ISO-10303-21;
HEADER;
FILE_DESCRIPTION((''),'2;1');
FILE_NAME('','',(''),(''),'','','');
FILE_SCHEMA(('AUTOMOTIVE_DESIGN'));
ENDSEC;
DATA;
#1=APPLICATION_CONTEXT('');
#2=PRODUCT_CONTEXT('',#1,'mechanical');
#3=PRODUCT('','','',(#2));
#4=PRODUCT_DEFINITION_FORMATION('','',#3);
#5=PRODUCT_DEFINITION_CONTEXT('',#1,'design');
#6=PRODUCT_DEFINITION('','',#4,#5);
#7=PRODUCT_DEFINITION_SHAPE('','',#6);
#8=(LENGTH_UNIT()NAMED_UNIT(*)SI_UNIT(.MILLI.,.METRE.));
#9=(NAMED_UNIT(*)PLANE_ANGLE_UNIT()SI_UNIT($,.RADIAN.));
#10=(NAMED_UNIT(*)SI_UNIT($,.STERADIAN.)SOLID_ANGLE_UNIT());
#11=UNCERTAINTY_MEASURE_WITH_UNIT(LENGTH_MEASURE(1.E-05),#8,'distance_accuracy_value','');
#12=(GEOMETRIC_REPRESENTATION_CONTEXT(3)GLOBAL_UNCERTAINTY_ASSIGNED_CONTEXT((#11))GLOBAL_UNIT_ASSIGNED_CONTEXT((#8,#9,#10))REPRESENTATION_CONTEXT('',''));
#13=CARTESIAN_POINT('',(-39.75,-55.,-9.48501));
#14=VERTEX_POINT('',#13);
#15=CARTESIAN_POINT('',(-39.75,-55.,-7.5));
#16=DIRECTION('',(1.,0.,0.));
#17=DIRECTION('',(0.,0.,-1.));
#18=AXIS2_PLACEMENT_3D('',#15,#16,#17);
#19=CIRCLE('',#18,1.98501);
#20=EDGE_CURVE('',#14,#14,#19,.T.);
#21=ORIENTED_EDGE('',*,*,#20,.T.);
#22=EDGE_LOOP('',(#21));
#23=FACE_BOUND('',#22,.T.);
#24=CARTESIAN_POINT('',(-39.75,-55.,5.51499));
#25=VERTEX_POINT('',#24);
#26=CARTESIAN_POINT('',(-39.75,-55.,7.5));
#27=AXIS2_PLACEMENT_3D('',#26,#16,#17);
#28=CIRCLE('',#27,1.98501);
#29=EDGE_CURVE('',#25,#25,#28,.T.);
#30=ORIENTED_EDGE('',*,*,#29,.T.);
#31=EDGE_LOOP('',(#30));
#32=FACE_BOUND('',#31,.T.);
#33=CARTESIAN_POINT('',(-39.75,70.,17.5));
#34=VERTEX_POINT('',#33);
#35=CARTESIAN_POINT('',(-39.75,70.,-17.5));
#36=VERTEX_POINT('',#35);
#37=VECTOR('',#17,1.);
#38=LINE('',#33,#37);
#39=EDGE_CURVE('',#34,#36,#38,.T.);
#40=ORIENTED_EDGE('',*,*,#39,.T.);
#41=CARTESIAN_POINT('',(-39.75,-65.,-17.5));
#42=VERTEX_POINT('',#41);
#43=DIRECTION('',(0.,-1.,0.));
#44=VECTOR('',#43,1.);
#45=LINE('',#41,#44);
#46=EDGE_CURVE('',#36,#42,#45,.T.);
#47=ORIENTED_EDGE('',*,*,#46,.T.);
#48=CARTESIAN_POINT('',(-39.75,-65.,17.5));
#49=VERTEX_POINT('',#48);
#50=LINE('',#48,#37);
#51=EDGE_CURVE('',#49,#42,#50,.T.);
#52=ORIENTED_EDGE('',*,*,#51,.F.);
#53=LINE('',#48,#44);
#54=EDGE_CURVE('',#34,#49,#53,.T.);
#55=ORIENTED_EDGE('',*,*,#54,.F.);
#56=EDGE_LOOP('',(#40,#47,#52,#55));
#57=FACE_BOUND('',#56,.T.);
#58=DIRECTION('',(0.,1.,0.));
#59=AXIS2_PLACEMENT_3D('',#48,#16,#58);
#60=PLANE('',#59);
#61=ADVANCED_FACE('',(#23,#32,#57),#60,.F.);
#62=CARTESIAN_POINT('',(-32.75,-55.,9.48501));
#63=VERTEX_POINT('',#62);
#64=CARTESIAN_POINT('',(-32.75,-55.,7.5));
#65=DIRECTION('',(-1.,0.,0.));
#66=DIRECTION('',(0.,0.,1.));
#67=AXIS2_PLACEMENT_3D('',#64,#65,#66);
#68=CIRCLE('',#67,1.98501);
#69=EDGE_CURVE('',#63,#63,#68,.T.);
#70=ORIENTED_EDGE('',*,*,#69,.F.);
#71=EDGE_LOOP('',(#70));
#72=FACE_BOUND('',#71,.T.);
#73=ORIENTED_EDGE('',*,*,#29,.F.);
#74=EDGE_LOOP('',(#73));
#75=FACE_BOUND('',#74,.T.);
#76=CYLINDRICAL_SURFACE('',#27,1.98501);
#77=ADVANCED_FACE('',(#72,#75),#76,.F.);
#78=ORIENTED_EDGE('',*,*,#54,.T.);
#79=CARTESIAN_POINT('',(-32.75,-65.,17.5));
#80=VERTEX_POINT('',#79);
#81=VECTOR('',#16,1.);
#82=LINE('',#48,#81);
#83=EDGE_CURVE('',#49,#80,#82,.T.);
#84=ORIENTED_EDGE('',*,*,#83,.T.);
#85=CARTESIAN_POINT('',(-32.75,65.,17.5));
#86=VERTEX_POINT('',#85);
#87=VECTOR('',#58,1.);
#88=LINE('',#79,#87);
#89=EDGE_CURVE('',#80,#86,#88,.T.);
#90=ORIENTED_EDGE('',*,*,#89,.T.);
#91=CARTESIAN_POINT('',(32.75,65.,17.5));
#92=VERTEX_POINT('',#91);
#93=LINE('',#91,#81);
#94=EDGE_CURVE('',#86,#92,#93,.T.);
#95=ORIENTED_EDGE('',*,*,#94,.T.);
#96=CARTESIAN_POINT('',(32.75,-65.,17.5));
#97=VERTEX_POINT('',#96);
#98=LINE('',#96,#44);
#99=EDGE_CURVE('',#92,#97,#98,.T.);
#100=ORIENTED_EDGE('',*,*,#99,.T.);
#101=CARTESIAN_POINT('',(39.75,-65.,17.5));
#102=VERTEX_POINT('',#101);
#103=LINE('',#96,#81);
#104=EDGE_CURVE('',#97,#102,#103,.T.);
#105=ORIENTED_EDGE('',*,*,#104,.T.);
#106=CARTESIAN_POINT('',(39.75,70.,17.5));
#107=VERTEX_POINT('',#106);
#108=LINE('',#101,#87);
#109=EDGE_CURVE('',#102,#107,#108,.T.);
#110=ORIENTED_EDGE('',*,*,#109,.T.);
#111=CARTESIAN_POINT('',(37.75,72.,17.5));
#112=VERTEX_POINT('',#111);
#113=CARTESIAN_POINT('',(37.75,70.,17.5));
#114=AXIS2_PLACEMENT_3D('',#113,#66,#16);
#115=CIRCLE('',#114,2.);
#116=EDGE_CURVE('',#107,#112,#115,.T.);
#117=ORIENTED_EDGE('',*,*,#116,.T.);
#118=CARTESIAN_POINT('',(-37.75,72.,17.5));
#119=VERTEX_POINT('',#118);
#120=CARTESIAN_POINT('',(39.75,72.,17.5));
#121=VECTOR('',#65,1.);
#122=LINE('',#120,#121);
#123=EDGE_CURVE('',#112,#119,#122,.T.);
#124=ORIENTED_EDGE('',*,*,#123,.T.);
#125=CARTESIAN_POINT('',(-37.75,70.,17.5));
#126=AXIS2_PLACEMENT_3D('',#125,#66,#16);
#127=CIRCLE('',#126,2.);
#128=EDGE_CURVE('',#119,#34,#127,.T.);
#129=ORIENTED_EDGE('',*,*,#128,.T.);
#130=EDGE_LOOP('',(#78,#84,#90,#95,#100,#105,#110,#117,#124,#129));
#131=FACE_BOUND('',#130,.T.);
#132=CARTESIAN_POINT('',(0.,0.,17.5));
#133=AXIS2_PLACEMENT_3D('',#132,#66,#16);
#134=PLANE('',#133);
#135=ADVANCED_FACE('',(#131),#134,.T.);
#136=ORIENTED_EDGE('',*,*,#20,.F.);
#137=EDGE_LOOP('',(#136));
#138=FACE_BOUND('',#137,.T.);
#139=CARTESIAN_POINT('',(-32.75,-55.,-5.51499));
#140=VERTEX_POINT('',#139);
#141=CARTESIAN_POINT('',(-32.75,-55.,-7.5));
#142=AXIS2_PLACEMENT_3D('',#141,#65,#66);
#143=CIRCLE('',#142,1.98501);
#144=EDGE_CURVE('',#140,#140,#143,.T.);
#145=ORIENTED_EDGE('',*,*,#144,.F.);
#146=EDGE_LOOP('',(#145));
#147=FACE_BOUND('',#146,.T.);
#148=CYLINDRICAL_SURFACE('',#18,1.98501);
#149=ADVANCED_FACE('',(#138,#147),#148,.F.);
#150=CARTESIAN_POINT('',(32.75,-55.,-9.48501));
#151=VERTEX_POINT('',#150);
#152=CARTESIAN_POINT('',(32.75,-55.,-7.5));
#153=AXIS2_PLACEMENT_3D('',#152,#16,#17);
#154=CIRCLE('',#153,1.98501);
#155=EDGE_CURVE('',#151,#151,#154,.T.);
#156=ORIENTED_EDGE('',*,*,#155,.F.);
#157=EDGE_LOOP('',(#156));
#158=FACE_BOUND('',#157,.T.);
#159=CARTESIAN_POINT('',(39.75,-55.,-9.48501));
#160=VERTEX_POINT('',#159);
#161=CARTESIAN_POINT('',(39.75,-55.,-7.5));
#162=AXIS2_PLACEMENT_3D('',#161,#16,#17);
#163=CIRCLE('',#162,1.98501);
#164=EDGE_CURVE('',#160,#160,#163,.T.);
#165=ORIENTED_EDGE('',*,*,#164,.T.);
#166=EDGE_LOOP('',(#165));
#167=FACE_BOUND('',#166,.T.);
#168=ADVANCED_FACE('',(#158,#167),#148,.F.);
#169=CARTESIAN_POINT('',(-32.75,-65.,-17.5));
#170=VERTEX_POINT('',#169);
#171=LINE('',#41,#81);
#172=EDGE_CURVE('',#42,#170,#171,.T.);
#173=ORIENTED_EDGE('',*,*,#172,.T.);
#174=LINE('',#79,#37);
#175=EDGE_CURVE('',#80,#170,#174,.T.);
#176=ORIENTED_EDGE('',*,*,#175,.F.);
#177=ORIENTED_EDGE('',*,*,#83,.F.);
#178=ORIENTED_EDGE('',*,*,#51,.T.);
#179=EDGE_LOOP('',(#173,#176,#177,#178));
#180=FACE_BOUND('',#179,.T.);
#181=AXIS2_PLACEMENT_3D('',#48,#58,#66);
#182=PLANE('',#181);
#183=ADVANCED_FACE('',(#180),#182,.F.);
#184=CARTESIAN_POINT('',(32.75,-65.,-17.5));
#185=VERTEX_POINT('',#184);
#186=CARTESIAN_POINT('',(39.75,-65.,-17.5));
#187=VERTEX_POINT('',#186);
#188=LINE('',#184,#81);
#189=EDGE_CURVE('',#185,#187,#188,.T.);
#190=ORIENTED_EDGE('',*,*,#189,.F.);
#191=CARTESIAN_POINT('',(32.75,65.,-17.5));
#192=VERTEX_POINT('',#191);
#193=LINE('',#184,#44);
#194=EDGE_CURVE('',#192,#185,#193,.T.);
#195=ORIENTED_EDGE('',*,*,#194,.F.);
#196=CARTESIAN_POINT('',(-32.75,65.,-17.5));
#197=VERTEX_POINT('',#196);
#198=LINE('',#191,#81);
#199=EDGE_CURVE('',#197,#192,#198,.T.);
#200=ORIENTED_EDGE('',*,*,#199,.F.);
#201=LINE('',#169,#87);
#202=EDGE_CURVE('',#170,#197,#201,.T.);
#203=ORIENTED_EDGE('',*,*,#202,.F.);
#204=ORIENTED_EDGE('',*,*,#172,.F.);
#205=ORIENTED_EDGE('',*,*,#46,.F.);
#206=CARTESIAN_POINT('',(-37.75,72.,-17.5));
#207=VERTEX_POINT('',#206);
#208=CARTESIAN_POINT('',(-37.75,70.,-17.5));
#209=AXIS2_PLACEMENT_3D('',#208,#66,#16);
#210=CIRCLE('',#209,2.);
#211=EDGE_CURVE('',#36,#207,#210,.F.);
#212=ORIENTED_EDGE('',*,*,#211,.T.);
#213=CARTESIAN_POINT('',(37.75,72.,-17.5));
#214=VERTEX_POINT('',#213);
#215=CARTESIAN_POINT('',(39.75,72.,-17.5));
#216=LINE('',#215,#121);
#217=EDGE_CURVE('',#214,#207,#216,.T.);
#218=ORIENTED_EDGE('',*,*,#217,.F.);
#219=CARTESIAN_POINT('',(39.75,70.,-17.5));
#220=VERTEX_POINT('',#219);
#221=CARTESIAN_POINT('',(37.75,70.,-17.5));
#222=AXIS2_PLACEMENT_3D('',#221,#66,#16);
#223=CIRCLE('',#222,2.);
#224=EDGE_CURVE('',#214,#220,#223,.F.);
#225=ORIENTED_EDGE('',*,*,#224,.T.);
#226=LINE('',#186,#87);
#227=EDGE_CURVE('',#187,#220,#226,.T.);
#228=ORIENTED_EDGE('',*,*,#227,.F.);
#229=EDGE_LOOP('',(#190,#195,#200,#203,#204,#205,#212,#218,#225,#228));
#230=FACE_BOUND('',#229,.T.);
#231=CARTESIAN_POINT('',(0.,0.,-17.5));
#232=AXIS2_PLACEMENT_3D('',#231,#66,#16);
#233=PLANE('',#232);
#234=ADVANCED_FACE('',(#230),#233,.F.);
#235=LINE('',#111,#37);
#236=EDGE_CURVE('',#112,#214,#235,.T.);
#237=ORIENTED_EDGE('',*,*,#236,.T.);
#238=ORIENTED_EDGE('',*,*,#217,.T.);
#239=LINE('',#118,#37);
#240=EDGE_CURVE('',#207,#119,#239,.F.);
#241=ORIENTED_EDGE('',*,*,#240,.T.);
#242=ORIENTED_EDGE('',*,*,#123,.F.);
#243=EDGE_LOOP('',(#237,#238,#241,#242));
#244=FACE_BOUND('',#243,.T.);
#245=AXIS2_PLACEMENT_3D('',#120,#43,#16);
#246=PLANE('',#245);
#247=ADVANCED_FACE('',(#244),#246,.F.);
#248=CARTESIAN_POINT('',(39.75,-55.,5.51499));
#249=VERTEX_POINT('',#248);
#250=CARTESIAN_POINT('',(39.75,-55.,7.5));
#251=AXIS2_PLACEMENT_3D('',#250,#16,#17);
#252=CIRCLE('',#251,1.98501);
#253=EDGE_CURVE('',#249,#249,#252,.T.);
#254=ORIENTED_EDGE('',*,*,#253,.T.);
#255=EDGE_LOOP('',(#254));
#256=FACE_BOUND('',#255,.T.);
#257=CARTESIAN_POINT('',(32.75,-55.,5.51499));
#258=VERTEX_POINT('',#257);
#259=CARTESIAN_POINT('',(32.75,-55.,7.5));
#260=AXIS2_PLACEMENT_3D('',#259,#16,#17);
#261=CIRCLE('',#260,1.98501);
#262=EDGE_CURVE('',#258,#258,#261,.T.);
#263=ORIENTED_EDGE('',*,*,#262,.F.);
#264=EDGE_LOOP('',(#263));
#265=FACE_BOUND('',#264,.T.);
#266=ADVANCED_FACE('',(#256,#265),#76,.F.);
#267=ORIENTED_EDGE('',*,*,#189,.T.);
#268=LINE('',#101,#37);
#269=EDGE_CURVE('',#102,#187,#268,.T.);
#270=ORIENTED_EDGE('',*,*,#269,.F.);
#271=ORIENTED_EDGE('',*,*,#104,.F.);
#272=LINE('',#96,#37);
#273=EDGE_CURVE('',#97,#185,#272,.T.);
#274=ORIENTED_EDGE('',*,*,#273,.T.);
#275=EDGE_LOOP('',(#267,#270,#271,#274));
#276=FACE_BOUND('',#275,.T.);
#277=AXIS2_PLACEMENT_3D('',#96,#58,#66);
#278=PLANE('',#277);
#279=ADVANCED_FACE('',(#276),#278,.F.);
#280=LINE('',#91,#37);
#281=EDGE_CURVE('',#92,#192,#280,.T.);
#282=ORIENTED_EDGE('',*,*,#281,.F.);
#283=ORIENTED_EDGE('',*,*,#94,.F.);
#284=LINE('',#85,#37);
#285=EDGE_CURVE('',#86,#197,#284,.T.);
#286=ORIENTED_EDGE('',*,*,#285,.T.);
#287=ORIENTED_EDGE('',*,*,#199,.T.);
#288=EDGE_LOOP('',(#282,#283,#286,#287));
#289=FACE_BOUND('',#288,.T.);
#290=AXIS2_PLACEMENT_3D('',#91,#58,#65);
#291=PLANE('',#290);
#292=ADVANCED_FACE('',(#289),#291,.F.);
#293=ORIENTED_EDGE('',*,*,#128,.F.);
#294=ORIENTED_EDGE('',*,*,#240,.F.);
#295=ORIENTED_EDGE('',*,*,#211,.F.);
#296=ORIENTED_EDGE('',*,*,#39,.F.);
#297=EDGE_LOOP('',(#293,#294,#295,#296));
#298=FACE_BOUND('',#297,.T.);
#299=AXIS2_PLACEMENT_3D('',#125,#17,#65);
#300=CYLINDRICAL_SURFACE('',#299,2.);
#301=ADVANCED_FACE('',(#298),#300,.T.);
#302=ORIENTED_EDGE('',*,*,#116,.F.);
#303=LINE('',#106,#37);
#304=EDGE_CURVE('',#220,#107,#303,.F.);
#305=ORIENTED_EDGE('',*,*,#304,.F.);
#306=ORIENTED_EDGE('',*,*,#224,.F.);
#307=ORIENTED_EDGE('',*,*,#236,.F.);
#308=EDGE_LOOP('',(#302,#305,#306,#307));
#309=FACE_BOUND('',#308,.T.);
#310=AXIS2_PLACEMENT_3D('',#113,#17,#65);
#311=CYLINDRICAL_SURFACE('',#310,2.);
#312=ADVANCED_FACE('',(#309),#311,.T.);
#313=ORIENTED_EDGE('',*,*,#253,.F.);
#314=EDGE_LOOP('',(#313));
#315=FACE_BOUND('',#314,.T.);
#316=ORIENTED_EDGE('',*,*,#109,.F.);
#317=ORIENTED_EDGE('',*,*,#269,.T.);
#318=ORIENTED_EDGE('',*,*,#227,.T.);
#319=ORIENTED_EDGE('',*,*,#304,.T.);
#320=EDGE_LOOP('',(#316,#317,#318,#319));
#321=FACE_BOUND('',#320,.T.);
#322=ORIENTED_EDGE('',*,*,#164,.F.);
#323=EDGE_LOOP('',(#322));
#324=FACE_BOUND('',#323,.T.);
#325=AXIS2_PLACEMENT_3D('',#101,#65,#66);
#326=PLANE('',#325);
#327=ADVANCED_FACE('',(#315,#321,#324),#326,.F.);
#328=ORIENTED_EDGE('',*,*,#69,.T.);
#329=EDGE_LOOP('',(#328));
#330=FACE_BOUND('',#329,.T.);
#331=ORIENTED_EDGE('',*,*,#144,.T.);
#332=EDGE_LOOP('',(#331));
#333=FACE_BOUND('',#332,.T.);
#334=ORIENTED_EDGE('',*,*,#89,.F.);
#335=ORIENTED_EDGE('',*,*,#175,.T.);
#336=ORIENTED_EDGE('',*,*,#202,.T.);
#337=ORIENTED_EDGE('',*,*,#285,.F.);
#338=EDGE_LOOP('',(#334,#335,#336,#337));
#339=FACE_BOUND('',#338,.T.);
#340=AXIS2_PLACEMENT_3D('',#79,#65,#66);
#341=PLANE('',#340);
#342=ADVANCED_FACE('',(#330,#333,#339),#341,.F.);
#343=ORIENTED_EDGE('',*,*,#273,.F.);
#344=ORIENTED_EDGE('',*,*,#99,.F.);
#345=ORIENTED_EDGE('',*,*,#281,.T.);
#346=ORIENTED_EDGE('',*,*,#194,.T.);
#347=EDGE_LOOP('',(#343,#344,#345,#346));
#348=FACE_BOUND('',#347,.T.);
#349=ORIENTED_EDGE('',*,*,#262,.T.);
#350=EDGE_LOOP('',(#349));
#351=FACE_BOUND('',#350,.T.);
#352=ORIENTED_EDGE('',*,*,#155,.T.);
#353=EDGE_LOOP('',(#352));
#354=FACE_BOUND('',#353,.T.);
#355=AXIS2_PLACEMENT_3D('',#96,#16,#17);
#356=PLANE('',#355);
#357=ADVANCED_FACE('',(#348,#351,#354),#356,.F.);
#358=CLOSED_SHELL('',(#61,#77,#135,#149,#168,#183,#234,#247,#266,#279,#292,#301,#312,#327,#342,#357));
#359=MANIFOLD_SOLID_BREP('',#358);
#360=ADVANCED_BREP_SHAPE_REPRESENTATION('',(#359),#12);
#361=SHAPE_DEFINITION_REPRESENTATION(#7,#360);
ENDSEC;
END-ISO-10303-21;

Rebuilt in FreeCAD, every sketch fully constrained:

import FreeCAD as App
import Part
import Sketcher

V = App.Vector


def edges_at(feature, points):
    """Names of the edges that pass closest to the given points."""
    edges = feature.Shape.Edges
    near = lambda p: min(range(len(edges)), key=lambda i: edges[i].distToShape(Part.Vertex(*p))[0])
    return sorted({f"Edge{near(p) + 1}" for p in points})


def add_polygon(sketch, points):
    """Adds a closed chain of lines whose ends are joined by coincident constraints."""
    first, n = sketch.GeometryCount, len(points)
    for a, b in zip(points, points[1:] + points[:1]):
        sketch.addGeometry(Part.LineSegment(App.Vector(*a, 0), App.Vector(*b, 0)), False)
    for i in range(n):
        sketch.addConstraint(Sketcher.Constraint("Coincident", first + i, 2, first + (i + 1) % n, 1))

doc = App.newDocument("Part")
body = doc.addObject("PartDesign::Body", "Body")

# Sketch on XY plane
sketch1 = body.newObject("Sketcher::SketchObject", "Sketch")
sketch1.AttachmentSupport = (doc.getObject("XY_Plane"), [""])
sketch1.MapMode = "FlatFace"
add_polygon(sketch1, [(-40, 72), (-40, -65), (-33, -65), (-33, 65), (33, 65), (33, -65), (40, -65), (40, 72)])  # lines 0-7
sketch1.addConstraint([
    Sketcher.Constraint("Vertical", 0),
    Sketcher.Constraint("Horizontal", 1),
    Sketcher.Constraint("Vertical", 2),
    Sketcher.Constraint("Horizontal", 3),
    Sketcher.Constraint("Vertical", 4),
    Sketcher.Constraint("Horizontal", 5),
    Sketcher.Constraint("Vertical", 6),
    Sketcher.Constraint("Horizontal", 7),
    Sketcher.Constraint("Symmetric", 1, 2, 3, 2, -1, 1),
    Sketcher.Constraint("Symmetric", 0, 2, 5, 2, -2),
    Sketcher.Constraint("DistanceX", 1, 1, 1, 2, 7.0),
    Sketcher.Constraint("DistanceY", 0, 2, 0, 1, 137.0),
    Sketcher.Constraint("DistanceY", 2, 1, 2, 2, 130.0),
    Sketcher.Constraint("DistanceX", 3, 1, 3, 2, 65.5),
])
pad1 = body.newObject("PartDesign::Pad", "Pad")
pad1.Profile = sketch1
pad1.Length = 35
pad1.Midplane = True

# Sketch on YZ plane
sketch2 = body.newObject("Sketcher::SketchObject", "Sketch001")
sketch2.AttachmentSupport = (doc.getObject("YZ_Plane"), [""])
sketch2.MapMode = "FlatFace"
sketch2.addGeometry([
    Part.Circle(V(-55, 7.5, 0), V(0, 0, 1), 2),
    Part.Circle(V(-55, -7.5, 0), V(0, 0, 1), 2),
], False)
sketch2.addConstraint([
    Sketcher.Constraint("Equal", 0, 1),
    Sketcher.Constraint("Symmetric", 0, 3, 1, 3, -1),
    Sketcher.Constraint("DistanceX", 0, 3, -1, 1, 55.0),
    Sketcher.Constraint("DistanceY", 1, 3, 0, 3, 15.0),
    Sketcher.Constraint("Diameter", 0, 3.97002),
])
pocket1 = body.newObject("PartDesign::Pocket", "Pocket")
pocket1.Profile = sketch2
pocket1.Type = "ThroughAll"
pocket1.Midplane = True
doc.recompute()

fillet = body.newObject("PartDesign::Fillet", "Fillet")
fillet.Base = (pocket1, edges_at(pocket1, [(-39.75, 72, 0), (39.75, 72, 0)]))
fillet.Radius = 2

doc.recompute()
